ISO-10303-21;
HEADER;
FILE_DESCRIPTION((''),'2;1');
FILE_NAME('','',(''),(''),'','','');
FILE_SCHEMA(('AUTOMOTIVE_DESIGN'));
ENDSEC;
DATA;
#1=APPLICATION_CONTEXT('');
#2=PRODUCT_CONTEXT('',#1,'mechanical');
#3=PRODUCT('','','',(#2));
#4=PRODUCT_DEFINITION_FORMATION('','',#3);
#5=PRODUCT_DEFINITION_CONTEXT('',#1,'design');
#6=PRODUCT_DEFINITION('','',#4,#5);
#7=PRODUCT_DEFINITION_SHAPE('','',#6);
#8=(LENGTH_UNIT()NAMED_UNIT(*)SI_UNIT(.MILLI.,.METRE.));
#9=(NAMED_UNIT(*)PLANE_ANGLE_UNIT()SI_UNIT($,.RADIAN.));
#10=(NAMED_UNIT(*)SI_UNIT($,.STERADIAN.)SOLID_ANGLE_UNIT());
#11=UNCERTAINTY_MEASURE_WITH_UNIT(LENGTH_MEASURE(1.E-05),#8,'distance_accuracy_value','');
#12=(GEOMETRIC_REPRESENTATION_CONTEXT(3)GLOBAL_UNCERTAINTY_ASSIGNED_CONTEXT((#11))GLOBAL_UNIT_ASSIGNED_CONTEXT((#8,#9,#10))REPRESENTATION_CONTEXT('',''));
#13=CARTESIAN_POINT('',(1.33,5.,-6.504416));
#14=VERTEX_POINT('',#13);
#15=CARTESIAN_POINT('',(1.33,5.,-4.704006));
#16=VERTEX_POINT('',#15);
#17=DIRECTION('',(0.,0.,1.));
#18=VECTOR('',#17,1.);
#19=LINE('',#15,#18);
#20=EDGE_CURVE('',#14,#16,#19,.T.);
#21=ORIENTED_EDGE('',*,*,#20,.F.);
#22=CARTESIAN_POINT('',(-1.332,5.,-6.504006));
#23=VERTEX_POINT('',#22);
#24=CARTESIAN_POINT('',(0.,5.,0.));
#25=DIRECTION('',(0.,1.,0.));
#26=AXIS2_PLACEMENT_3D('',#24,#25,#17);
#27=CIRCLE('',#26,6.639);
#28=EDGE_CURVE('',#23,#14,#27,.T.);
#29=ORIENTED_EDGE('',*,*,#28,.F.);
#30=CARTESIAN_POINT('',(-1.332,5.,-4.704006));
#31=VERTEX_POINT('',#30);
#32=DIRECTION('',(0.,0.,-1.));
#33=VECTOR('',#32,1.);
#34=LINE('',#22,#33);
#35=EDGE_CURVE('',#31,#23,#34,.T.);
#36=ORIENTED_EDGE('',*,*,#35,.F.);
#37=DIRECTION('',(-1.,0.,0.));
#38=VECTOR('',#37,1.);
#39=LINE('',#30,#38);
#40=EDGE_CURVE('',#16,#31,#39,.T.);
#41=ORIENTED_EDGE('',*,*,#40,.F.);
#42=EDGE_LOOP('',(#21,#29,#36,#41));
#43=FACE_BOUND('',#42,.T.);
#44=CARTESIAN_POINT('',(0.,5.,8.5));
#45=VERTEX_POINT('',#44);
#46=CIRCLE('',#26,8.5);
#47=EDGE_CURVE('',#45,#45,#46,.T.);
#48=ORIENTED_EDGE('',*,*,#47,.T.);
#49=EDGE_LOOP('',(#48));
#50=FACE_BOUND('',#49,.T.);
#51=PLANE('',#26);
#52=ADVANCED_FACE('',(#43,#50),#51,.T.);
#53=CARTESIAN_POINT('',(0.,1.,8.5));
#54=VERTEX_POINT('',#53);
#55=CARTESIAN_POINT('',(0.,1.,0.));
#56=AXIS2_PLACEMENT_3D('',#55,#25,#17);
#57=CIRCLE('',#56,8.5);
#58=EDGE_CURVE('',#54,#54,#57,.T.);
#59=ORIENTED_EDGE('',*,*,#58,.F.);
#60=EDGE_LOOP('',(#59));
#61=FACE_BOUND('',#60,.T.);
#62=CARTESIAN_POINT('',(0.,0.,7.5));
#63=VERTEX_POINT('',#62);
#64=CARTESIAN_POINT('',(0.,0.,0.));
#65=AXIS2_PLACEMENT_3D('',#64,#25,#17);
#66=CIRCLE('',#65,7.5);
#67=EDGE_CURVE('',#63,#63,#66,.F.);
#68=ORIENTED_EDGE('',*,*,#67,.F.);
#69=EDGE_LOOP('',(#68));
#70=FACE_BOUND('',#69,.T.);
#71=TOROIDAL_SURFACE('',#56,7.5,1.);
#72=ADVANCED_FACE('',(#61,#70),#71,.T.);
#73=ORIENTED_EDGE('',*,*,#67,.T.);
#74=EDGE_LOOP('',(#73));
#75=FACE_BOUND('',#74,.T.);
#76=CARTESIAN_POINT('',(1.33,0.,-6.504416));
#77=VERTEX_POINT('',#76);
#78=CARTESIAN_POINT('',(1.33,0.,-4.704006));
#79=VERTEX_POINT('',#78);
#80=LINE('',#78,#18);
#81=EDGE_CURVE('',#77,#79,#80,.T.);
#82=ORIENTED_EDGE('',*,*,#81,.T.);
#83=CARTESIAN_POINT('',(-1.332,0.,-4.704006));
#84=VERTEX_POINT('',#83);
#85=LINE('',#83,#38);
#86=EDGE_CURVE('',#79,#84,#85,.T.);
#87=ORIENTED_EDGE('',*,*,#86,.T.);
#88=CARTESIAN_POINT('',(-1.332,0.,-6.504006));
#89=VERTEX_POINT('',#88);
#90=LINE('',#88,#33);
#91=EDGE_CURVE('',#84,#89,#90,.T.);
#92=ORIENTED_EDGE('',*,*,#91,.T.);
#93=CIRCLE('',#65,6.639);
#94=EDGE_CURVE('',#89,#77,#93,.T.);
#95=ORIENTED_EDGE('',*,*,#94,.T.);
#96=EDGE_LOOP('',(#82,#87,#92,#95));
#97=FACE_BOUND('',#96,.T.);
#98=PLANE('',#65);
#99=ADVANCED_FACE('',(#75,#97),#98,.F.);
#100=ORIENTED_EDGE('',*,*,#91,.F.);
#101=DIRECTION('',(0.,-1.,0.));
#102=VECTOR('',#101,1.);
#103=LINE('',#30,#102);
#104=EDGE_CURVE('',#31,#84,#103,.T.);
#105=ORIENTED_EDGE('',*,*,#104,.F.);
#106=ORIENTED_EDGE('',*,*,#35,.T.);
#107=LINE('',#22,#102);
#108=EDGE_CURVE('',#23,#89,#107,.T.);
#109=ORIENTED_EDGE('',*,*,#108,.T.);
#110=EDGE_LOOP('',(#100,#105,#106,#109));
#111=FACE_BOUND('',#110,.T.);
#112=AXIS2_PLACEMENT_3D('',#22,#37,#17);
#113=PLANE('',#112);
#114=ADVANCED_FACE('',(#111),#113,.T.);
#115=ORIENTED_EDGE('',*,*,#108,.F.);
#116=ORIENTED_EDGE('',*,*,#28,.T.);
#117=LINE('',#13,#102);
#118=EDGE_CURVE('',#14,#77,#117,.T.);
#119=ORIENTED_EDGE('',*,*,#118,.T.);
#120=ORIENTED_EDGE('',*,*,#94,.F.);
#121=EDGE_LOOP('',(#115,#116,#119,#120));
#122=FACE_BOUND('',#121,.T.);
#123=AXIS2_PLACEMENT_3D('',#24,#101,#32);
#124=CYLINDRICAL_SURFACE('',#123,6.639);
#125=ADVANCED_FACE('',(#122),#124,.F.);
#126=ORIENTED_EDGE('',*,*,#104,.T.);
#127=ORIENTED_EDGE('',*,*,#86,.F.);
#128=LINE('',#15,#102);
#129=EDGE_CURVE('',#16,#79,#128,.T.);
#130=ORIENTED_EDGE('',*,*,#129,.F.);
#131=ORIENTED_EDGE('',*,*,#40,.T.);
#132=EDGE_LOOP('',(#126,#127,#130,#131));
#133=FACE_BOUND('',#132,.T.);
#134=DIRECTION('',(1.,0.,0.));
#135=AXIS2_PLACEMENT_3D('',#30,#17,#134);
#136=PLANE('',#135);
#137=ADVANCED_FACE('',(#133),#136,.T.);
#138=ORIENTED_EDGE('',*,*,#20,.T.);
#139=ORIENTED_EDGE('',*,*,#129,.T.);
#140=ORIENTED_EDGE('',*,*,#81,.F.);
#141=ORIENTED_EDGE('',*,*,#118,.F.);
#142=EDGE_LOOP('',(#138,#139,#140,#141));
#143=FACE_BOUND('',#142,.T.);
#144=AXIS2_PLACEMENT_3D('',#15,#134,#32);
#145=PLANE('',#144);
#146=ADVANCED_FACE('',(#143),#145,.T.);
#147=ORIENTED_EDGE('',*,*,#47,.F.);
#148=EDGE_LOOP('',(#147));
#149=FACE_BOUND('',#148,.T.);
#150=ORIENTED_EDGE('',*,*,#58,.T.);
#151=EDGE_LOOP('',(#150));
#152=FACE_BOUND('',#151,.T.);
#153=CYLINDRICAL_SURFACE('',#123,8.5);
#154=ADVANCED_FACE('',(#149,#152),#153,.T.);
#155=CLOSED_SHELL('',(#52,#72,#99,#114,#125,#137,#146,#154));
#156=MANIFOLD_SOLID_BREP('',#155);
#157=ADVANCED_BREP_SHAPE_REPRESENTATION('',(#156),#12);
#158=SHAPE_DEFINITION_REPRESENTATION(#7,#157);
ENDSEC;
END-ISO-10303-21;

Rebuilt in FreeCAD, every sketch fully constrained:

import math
import FreeCAD as App
import Part
import Sketcher

V = App.Vector
Q = App.Units.Quantity


def edges_at(feature, points):
    """Names of the edges that pass closest to the given points."""
    edges = feature.Shape.Edges
    near = lambda p: min(range(len(edges)), key=lambda i: edges[i].distToShape(Part.Vertex(*p))[0])
    return sorted({f"Edge{near(p) + 1}" for p in points})

doc = App.newDocument("Part")
body = doc.addObject("PartDesign::Body", "Body")

sketch1 = body.newObject("Sketcher::SketchObject", "Sketch")
sketch1.AttachmentSupport = (doc.getObject("XZ_Plane"), [""])
sketch1.MapMode = "FlatFace"
sketch1.addGeometry([
    Part.Circle(V(0, 0, 0), V(0, 0, 1), 8.5),
    Part.ArcOfCircle(Part.Circle(V(0, 0, 0), V(0, 0, 1), 6.6), math.radians(-78), math.radians(258)),
    Part.LineSegment(V(-1.3, -6.5, 0), V(-1.3, -4.7, 0)),
    Part.LineSegment(V(-1.3, -4.7, 0), V(1.3, -4.7, 0)),
    Part.LineSegment(V(1.3, -4.7, 0), V(1.3, -6.5, 0)),
], False)
sketch1.addConstraint([
    Sketcher.Constraint("Coincident", 1, 2, 2, 1),
    Sketcher.Constraint("Coincident", 2, 2, 3, 1),
    Sketcher.Constraint("Coincident", 3, 2, 4, 1),
    Sketcher.Constraint("Coincident", 4, 2, 1, 1),
    Sketcher.Constraint("Vertical", 2),
    Sketcher.Constraint("Horizontal", 3),
    Sketcher.Constraint("Vertical", 4),
    Sketcher.Constraint("Coincident", 0, 3, -1, 1),
    Sketcher.Constraint("Coincident", 1, 3, -1, 1),
    Sketcher.Constraint("Diameter", 0, Q("17 mm")),
    Sketcher.Constraint("DistanceY", 2, 1, 2, 2, Q("1.8 mm")),
    Sketcher.Constraint("Radius", 1, Q("6.639 mm")),
    Sketcher.Constraint("DistanceX", 3, 1, 3, 2, Q("2.662 mm")),
    Sketcher.Constraint("DistanceX", -1, 1, 3, 2, Q("1.33 mm")),
])
pad1 = body.newObject("PartDesign::Pad", "Pad")
pad1.Profile = sketch1
pad1.Length = 5
pad1.Reversed = True
doc.recompute()

fillet = body.newObject("PartDesign::Fillet", "Fillet")
fillet.Base = (pad1, edges_at(pad1, [(-8.5, 0, 0)]))
fillet.Radius = 1

doc.recompute()
